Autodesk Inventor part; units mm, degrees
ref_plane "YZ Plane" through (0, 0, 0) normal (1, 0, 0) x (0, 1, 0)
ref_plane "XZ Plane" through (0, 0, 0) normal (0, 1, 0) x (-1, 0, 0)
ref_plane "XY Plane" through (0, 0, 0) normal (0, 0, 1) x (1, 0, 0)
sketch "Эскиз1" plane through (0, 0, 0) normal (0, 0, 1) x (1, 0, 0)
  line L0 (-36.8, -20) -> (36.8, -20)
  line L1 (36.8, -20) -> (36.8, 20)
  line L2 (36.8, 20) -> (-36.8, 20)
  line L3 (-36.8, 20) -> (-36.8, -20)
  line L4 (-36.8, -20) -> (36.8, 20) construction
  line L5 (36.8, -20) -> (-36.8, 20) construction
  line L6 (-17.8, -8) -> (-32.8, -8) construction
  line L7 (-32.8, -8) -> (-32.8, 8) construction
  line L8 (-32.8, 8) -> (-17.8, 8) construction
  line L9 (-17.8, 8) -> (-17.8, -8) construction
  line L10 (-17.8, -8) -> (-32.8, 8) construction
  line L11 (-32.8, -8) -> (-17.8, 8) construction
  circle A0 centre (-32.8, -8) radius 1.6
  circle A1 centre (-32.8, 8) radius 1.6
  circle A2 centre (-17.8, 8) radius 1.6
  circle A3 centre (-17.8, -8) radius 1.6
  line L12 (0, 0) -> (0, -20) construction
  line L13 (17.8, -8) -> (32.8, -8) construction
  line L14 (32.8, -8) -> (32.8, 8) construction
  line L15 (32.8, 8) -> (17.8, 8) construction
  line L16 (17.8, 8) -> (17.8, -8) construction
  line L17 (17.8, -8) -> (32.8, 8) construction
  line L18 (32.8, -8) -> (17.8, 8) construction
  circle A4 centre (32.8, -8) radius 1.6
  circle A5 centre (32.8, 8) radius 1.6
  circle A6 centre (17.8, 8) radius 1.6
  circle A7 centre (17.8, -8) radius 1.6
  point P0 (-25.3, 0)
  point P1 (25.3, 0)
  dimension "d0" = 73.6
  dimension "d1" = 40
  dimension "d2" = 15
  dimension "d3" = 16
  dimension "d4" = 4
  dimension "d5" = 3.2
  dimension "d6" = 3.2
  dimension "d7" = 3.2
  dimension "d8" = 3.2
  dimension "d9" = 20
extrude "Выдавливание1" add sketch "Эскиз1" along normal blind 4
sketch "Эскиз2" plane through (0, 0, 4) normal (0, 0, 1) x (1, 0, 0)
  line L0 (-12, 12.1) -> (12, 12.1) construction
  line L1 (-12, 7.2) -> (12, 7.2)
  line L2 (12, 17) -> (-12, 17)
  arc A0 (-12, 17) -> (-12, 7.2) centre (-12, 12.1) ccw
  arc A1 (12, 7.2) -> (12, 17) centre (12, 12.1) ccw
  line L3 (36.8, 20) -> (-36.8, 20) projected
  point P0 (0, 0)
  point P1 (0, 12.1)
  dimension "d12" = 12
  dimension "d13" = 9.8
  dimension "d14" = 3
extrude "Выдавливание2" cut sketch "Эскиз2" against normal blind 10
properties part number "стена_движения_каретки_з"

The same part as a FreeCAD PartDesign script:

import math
import FreeCAD as App
import Part
import Sketcher

V = App.Vector
Q = App.Units.Quantity


def add_polygon(sketch, points):
    """Adds a closed chain of lines whose ends are joined by coincident constraints."""
    first, n = sketch.GeometryCount, len(points)
    for a, b in zip(points, points[1:] + points[:1]):
        sketch.addGeometry(Part.LineSegment(App.Vector(*a, 0), App.Vector(*b, 0)), False)
    for i in range(n):
        sketch.addConstraint(Sketcher.Constraint("Coincident", first + i, 2, first + (i + 1) % n, 1))

doc = App.newDocument("Part")
body = doc.addObject("PartDesign::Body", "Body")

# Sketch on XY plane
sketch1 = body.newObject("Sketcher::SketchObject", "Sketch")
sketch1.AttachmentSupport = (doc.getObject("XY_Plane"), [""])
sketch1.MapMode = "FlatFace"
add_polygon(sketch1, [(-36.8, 20), (-36.8, -20), (36.8, -20), (36.8, 20)])  # lines 0-3
sketch1.addGeometry(Part.Circle(V(-32.8, -8, 0), V(0, 0, 1), 1.6), False)  # 4
sketch1.addGeometry(Part.Circle(V(-17.8, -8, 0), V(0, 0, 1), 1.6), False)  # 5
sketch1.addGeometry(Part.Circle(V(17.8, -8, 0), V(0, 0, 1), 1.6), False)  # 6
sketch1.addGeometry(Part.Circle(V(32.8, -8, 0), V(0, 0, 1), 1.6), False)  # 7
sketch1.addGeometry(Part.Circle(V(-32.8, 8, 0), V(0, 0, 1), 1.6), False)  # 8
sketch1.addGeometry(Part.Circle(V(-17.8, 8, 0), V(0, 0, 1), 1.6), False)  # 9
sketch1.addGeometry(Part.Circle(V(17.8, 8, 0), V(0, 0, 1), 1.6), False)  # 10
sketch1.addGeometry(Part.Circle(V(32.8, 8, 0), V(0, 0, 1), 1.6), False)  # 11
sketch1.addConstraint([
    Sketcher.Constraint("Vertical", 0),
    Sketcher.Constraint("Horizontal", 1),
    Sketcher.Constraint("Vertical", 2),
    Sketcher.Constraint("Horizontal", 3),
    Sketcher.Constraint("Equal", 4, 5),
    Sketcher.Constraint("Equal", 5, 6),
    Sketcher.Constraint("Equal", 6, 7),
    Sketcher.Constraint("Equal", 7, 8),
    Sketcher.Constraint("Equal", 8, 9),
    Sketcher.Constraint("Equal", 9, 10),
    Sketcher.Constraint("Equal", 10, 11),
    Sketcher.Constraint("Symmetric", 7, 3, 8, 3, -1, 1),
    Sketcher.Constraint("Symmetric", 6, 3, 9, 3, -1, 1),
    Sketcher.Constraint("Symmetric", 5, 3, 10, 3, -1, 1),
    Sketcher.Constraint("Symmetric", 4, 3, 11, 3, -1, 1),
    Sketcher.Constraint("Symmetric", 0, 2, 2, 2, -1, 1),
    Sketcher.Constraint("Symmetric", 5, 3, 6, 3, -2),
    Sketcher.Constraint("Symmetric", 4, 3, 7, 3, -2),
    Sketcher.Constraint("Horizontal", 4, 3, 5, 3),
    Sketcher.Constraint("Diameter", 4, Q("3.2 mm")),
    Sketcher.Constraint("DistanceY", 0, 2, 0, 1, Q("40 mm")),
    Sketcher.Constraint("DistanceX", 1, 1, 1, 2, Q("73.6 mm")),
    Sketcher.Constraint("DistanceX", 4, 3, 5, 3, Q("15 mm")),
    Sketcher.Constraint("DistanceY", 4, 3, 8, 3, Q("16 mm")),
    Sketcher.Constraint("DistanceX", 0, 2, 4, 3, Q("4 mm")),
])
pad1 = body.newObject("PartDesign::Pad", "Pad")
pad1.Profile = sketch1
pad1.Length = 4

# Sketch on XY plane
sketch2 = body.newObject("Sketcher::SketchObject", "Sketch001")
sketch2.AttachmentSupport = (doc.getObject("XY_Plane"), [""])
sketch2.MapMode = "FlatFace"
sketch2.AttachmentOffset = App.Placement(V(0, 0, 4), App.Rotation())
sketch2.addGeometry([
    Part.ArcOfCircle(Part.Circle(V(-12, 12.1, 0), V(0, 0, 1), 4.9), math.radians(90), math.radians(270)),
    Part.LineSegment(V(-12, 7.2, 0), V(12, 7.2, 0)),
    Part.ArcOfCircle(Part.Circle(V(12, 12.1, 0), V(0, 0, 1), 4.9), math.radians(-90), math.radians(90)),
    Part.LineSegment(V(12, 17, 0), V(-12, 17, 0)),
], False)
sketch2.addConstraint([
    Sketcher.Constraint("Tangent", 0, 2, 1, 1),
    Sketcher.Constraint("Tangent", 1, 2, 2, 1),
    Sketcher.Constraint("Tangent", 2, 2, 3, 1),
    Sketcher.Constraint("Tangent", 3, 2, 0, 1),
    Sketcher.Constraint("Horizontal", 1),
    Sketcher.Constraint("Horizontal", 3),
    Sketcher.Constraint("Radius", 0, Q("4.9 mm")),
    Sketcher.Constraint("DistanceX", 0, 3, -1, 1, Q("12 mm")),
    Sketcher.Constraint("DistanceX", -1, 1, 2, 3, Q("12 mm")),
    Sketcher.Constraint("DistanceY", -1, 1, 2, 2, Q("17 mm")),
])
pocket1 = body.newObject("PartDesign::Pocket", "Pocket")
pocket1.Profile = sketch2
pocket1.Length = 10

doc.recompute()
